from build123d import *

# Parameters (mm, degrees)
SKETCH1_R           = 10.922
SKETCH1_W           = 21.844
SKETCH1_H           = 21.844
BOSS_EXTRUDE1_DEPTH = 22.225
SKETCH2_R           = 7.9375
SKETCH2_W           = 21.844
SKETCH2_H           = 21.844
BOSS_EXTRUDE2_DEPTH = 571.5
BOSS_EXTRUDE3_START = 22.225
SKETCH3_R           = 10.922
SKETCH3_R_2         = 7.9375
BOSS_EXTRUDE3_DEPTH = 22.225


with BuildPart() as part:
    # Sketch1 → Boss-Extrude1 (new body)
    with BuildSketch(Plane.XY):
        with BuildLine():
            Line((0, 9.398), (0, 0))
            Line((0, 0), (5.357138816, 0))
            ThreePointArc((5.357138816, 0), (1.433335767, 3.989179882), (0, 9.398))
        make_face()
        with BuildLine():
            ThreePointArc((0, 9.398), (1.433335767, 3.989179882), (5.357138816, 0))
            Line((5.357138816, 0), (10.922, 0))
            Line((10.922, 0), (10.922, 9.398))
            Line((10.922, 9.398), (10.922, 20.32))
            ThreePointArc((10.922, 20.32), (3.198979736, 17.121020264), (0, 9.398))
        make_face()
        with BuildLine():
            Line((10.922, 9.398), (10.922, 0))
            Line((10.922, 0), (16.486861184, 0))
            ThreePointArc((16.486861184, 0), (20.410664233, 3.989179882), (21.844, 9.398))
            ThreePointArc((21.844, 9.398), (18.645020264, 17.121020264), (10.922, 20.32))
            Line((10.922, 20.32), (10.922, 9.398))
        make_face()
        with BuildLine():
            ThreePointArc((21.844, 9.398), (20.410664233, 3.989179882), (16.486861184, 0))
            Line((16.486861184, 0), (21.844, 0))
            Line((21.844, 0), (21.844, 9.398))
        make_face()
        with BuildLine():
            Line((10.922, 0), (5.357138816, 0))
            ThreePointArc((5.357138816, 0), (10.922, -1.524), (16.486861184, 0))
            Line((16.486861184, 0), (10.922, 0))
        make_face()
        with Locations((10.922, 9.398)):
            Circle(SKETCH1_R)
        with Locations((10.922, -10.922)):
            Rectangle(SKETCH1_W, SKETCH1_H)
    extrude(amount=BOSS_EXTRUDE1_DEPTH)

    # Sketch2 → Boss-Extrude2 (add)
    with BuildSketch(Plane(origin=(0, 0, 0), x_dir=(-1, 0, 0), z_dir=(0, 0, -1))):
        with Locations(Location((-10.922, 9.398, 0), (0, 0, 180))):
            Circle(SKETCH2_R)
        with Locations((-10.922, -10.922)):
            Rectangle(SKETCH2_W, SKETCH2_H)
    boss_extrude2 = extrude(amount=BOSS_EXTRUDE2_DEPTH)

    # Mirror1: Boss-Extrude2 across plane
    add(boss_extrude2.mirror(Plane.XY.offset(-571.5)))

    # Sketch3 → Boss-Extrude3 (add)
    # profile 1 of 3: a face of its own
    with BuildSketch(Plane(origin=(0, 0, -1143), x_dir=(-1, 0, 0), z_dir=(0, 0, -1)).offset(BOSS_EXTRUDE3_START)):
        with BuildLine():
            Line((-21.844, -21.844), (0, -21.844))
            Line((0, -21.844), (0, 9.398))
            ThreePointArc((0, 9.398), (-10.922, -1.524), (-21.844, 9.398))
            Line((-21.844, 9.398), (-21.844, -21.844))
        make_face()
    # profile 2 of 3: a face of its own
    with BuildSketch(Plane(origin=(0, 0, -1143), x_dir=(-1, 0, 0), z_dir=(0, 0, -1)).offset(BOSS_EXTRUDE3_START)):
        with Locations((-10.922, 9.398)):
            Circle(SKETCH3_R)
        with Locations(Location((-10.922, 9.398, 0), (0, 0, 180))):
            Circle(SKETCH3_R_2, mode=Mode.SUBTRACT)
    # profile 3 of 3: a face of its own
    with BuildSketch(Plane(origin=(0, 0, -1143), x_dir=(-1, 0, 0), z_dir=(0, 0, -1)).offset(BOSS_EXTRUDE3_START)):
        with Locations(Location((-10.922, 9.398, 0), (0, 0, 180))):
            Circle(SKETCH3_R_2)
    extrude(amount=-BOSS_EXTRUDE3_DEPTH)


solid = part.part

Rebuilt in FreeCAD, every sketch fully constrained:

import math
import FreeCAD as App
import Part
import Sketcher

V = App.Vector
Q = App.Units.Quantity

doc = App.newDocument("Part")
params = doc.addObject("Spreadsheet::Sheet", "Params")
for row, (alias, value) in enumerate([
    ("sketch1_radius", "0.43 in"),
    ("sketch1_height", "1.23 in"),
    ("pad1_length", "0.875 in"),
    ("sketch2_diameter", "0.625 in"),
    ("sketch2_width", "0.86 in"),
    ("pad2_length", "22.5 in"),
    ("sketch3_radius", "0.43 in"),
    ("sketch3_height", "1.23 in"),
    ("pad3_length", "0.875 in"),
], start=1):
    params.set(f"A{row}", alias)
    params.set(f"B{row}", "=" + value)
    params.setAlias(f"B{row}", alias)

body = doc.addObject("PartDesign::Body", "Body")

# Sketch on XY plane
sketch1 = doc.addObject("Sketcher::SketchObject", "Sketch")
body.addObject(sketch1)
sketch1.AttachmentSupport = (doc.XY_Plane, [""])
sketch1.MapMode = "FlatFace"
sketch1.addGeometry([
    Part.LineSegment(V(0, 9.398, 0), V(0, -21.844, 0)),  # 0
    Part.LineSegment(V(0, -21.844, 0), V(21.844, -21.844, 0)),  # 1
    Part.LineSegment(V(21.844, -21.844, 0), V(21.844, 9.398, 0)),  # 2
    Part.ArcOfCircle(Part.Circle(V(10.922, 9.398, 0), V(0, 0, 1), 10.922), math.radians(0), math.radians(90)),  # 3
    Part.ArcOfCircle(Part.Circle(V(10.922, 9.398, 0), V(0, 0, 1), 10.922), math.radians(90), math.radians(180)),  # 4
], False)
sketch1.addConstraint([
    Sketcher.Constraint("Coincident", 0, 2, 1, 1),
    Sketcher.Constraint("Coincident", 1, 2, 2, 1),
    Sketcher.Constraint("Tangent", 2, 2, 3, 1),
    Sketcher.Constraint("Tangent", 3, 2, 4, 1),
    Sketcher.Constraint("Tangent", 4, 2, 0, 1),
    Sketcher.Constraint("Vertical", 0),
    Sketcher.Constraint("Horizontal", 1),
    Sketcher.Constraint("Vertical", 2),
    Sketcher.Constraint("Equal", 3, 4),
    Sketcher.Constraint("PointOnObject", 0, 2, -2),
    Sketcher.Constraint("Vertical", 4, 3, 3, 2),
    Sketcher.Constraint("Radius", 3, Q("0.43 in")),
    Sketcher.Constraint("DistanceY", 0, 2, 0, 1, Q("1.23 in")),
    Sketcher.Constraint("DistanceY", -1, 1, 3, 2, Q("0.8 in")),
])
sketch1.setExpression("Constraints[11]", "Params.sketch1_radius")
sketch1.setExpression("Constraints[12]", "Params.sketch1_height")
pad1 = doc.addObject("PartDesign::Pad", "Pad")
body.addObject(pad1)
pad1.Profile = sketch1
pad1.setExpression("Length", "Params.pad1_length")

# Sketch on XY plane
sketch2 = doc.addObject("Sketcher::SketchObject", "Sketch001")
body.addObject(sketch2)
sketch2.AttachmentSupport = (doc.XY_Plane, [""])
sketch2.MapMode = "FlatFace"
sketch2.addGeometry([
    Part.Circle(V(10.922, 9.398, 0), V(0, 0, 1), 7.9375),  # 0
    Part.LineSegment(V(21.844, 0, 0), V(21.844, -21.844, 0)),  # 1
    Part.LineSegment(V(21.844, -21.844, 0), V(0, -21.844, 0)),  # 2
    Part.LineSegment(V(0, -21.844, 0), V(0, 0, 0)),  # 3
    Part.LineSegment(V(0, 0, 0), V(21.844, 0, 0)),  # 4
], False)
sketch2.addConstraint([
    Sketcher.Constraint("Coincident", 1, 2, 2, 1),
    Sketcher.Constraint("Coincident", 2, 2, 3, 1),
    Sketcher.Constraint("Coincident", 3, 2, 4, 1),
    Sketcher.Constraint("Coincident", 4, 2, 1, 1),
    Sketcher.Constraint("Vertical", 1),
    Sketcher.Constraint("Horizontal", 2),
    Sketcher.Constraint("Vertical", 3),
    Sketcher.Constraint("Horizontal", 4),
    Sketcher.Constraint("Coincident", 3, 2, -1, 1),
    Sketcher.Constraint("Equal", 4, 1),
    Sketcher.Constraint("Diameter", 0, Q("0.625 in")),
    Sketcher.Constraint("DistanceX", 2, 2, 2, 1, Q("0.86 in")),
    Sketcher.Constraint("DistanceX", -1, 1, 0, 3, Q("0.43 in")),
    Sketcher.Constraint("DistanceY", -1, 1, 0, 3, Q("0.37 in")),
])
sketch2.setExpression("Constraints[10]", "Params.sketch2_diameter")
sketch2.setExpression("Constraints[11]", "Params.sketch2_width")
pad2 = doc.addObject("PartDesign::Pad", "Pad001")
body.addObject(pad2)
pad2.Profile = sketch2
pad2.setExpression("Length", "Params.pad2_length")
pad2.Reversed = True
doc.recompute()

datumplane = doc.addObject("PartDesign::Plane", "DatumPlane")
body.addObject(datumplane)
datumplane.AttachmentSupport = (doc.XY_Plane, [""])
datumplane.MapMode = "FlatFace"
datumplane.AttachmentOffset = App.Placement(V(0, 0, -22.5 * 25.4), App.Rotation())
mirrored = doc.addObject("PartDesign::Mirrored", "Mirrored")
body.addObject(mirrored)
mirrored.Originals = [pad2]
mirrored.MirrorPlane = (datumplane, [""])
body.Tip = mirrored

# Sketch on XY plane
sketch3 = doc.addObject("Sketcher::SketchObject", "Sketch002")
body.addObject(sketch3)
sketch3.AttachmentSupport = (doc.XY_Plane, [""])
sketch3.MapMode = "FlatFace"
sketch3.AttachmentOffset = App.Placement(V(0, 0, -45.875 * 25.4), App.Rotation())
sketch3.addGeometry([
    Part.LineSegment(V(21.844, -21.844, 0), V(0, -21.844, 0)),
    Part.LineSegment(V(0, -21.844, 0), V(0, 9.398, 0)),
    Part.ArcOfCircle(Part.Circle(V(10.922, 9.398, 0), V(0, 0, 1), 10.922), math.radians(0), math.radians(180)),
    Part.LineSegment(V(21.844, 9.398, 0), V(21.844, -21.844, 0)),
], False)
sketch3.addConstraint([
    Sketcher.Constraint("Coincident", 0, 2, 1, 1),
    Sketcher.Constraint("Tangent", 1, 2, 2, 2),
    Sketcher.Constraint("Tangent", 2, 1, 3, 1),
    Sketcher.Constraint("Coincident", 3, 2, 0, 1),
    Sketcher.Constraint("Horizontal", 0),
    Sketcher.Constraint("Vertical", 1),
    Sketcher.Constraint("Vertical", 3),
    Sketcher.Constraint("PointOnObject", 0, 2, -2),
    Sketcher.Constraint("Radius", 2, Q("0.43 in")),
    Sketcher.Constraint("DistanceY", 1, 1, 1, 2, Q("1.23 in")),
    Sketcher.Constraint("DistanceY", -1, 1, 2, 3, Q("0.37 in")),
])
sketch3.setExpression("Constraints[8]", "Params.sketch3_radius")
sketch3.setExpression("Constraints[9]", "Params.sketch3_height")
pad3 = doc.addObject("PartDesign::Pad", "Pad002")
body.addObject(pad3)
pad3.Profile = sketch3
pad3.setExpression("Length", "Params.pad3_length")

doc.recompute()
